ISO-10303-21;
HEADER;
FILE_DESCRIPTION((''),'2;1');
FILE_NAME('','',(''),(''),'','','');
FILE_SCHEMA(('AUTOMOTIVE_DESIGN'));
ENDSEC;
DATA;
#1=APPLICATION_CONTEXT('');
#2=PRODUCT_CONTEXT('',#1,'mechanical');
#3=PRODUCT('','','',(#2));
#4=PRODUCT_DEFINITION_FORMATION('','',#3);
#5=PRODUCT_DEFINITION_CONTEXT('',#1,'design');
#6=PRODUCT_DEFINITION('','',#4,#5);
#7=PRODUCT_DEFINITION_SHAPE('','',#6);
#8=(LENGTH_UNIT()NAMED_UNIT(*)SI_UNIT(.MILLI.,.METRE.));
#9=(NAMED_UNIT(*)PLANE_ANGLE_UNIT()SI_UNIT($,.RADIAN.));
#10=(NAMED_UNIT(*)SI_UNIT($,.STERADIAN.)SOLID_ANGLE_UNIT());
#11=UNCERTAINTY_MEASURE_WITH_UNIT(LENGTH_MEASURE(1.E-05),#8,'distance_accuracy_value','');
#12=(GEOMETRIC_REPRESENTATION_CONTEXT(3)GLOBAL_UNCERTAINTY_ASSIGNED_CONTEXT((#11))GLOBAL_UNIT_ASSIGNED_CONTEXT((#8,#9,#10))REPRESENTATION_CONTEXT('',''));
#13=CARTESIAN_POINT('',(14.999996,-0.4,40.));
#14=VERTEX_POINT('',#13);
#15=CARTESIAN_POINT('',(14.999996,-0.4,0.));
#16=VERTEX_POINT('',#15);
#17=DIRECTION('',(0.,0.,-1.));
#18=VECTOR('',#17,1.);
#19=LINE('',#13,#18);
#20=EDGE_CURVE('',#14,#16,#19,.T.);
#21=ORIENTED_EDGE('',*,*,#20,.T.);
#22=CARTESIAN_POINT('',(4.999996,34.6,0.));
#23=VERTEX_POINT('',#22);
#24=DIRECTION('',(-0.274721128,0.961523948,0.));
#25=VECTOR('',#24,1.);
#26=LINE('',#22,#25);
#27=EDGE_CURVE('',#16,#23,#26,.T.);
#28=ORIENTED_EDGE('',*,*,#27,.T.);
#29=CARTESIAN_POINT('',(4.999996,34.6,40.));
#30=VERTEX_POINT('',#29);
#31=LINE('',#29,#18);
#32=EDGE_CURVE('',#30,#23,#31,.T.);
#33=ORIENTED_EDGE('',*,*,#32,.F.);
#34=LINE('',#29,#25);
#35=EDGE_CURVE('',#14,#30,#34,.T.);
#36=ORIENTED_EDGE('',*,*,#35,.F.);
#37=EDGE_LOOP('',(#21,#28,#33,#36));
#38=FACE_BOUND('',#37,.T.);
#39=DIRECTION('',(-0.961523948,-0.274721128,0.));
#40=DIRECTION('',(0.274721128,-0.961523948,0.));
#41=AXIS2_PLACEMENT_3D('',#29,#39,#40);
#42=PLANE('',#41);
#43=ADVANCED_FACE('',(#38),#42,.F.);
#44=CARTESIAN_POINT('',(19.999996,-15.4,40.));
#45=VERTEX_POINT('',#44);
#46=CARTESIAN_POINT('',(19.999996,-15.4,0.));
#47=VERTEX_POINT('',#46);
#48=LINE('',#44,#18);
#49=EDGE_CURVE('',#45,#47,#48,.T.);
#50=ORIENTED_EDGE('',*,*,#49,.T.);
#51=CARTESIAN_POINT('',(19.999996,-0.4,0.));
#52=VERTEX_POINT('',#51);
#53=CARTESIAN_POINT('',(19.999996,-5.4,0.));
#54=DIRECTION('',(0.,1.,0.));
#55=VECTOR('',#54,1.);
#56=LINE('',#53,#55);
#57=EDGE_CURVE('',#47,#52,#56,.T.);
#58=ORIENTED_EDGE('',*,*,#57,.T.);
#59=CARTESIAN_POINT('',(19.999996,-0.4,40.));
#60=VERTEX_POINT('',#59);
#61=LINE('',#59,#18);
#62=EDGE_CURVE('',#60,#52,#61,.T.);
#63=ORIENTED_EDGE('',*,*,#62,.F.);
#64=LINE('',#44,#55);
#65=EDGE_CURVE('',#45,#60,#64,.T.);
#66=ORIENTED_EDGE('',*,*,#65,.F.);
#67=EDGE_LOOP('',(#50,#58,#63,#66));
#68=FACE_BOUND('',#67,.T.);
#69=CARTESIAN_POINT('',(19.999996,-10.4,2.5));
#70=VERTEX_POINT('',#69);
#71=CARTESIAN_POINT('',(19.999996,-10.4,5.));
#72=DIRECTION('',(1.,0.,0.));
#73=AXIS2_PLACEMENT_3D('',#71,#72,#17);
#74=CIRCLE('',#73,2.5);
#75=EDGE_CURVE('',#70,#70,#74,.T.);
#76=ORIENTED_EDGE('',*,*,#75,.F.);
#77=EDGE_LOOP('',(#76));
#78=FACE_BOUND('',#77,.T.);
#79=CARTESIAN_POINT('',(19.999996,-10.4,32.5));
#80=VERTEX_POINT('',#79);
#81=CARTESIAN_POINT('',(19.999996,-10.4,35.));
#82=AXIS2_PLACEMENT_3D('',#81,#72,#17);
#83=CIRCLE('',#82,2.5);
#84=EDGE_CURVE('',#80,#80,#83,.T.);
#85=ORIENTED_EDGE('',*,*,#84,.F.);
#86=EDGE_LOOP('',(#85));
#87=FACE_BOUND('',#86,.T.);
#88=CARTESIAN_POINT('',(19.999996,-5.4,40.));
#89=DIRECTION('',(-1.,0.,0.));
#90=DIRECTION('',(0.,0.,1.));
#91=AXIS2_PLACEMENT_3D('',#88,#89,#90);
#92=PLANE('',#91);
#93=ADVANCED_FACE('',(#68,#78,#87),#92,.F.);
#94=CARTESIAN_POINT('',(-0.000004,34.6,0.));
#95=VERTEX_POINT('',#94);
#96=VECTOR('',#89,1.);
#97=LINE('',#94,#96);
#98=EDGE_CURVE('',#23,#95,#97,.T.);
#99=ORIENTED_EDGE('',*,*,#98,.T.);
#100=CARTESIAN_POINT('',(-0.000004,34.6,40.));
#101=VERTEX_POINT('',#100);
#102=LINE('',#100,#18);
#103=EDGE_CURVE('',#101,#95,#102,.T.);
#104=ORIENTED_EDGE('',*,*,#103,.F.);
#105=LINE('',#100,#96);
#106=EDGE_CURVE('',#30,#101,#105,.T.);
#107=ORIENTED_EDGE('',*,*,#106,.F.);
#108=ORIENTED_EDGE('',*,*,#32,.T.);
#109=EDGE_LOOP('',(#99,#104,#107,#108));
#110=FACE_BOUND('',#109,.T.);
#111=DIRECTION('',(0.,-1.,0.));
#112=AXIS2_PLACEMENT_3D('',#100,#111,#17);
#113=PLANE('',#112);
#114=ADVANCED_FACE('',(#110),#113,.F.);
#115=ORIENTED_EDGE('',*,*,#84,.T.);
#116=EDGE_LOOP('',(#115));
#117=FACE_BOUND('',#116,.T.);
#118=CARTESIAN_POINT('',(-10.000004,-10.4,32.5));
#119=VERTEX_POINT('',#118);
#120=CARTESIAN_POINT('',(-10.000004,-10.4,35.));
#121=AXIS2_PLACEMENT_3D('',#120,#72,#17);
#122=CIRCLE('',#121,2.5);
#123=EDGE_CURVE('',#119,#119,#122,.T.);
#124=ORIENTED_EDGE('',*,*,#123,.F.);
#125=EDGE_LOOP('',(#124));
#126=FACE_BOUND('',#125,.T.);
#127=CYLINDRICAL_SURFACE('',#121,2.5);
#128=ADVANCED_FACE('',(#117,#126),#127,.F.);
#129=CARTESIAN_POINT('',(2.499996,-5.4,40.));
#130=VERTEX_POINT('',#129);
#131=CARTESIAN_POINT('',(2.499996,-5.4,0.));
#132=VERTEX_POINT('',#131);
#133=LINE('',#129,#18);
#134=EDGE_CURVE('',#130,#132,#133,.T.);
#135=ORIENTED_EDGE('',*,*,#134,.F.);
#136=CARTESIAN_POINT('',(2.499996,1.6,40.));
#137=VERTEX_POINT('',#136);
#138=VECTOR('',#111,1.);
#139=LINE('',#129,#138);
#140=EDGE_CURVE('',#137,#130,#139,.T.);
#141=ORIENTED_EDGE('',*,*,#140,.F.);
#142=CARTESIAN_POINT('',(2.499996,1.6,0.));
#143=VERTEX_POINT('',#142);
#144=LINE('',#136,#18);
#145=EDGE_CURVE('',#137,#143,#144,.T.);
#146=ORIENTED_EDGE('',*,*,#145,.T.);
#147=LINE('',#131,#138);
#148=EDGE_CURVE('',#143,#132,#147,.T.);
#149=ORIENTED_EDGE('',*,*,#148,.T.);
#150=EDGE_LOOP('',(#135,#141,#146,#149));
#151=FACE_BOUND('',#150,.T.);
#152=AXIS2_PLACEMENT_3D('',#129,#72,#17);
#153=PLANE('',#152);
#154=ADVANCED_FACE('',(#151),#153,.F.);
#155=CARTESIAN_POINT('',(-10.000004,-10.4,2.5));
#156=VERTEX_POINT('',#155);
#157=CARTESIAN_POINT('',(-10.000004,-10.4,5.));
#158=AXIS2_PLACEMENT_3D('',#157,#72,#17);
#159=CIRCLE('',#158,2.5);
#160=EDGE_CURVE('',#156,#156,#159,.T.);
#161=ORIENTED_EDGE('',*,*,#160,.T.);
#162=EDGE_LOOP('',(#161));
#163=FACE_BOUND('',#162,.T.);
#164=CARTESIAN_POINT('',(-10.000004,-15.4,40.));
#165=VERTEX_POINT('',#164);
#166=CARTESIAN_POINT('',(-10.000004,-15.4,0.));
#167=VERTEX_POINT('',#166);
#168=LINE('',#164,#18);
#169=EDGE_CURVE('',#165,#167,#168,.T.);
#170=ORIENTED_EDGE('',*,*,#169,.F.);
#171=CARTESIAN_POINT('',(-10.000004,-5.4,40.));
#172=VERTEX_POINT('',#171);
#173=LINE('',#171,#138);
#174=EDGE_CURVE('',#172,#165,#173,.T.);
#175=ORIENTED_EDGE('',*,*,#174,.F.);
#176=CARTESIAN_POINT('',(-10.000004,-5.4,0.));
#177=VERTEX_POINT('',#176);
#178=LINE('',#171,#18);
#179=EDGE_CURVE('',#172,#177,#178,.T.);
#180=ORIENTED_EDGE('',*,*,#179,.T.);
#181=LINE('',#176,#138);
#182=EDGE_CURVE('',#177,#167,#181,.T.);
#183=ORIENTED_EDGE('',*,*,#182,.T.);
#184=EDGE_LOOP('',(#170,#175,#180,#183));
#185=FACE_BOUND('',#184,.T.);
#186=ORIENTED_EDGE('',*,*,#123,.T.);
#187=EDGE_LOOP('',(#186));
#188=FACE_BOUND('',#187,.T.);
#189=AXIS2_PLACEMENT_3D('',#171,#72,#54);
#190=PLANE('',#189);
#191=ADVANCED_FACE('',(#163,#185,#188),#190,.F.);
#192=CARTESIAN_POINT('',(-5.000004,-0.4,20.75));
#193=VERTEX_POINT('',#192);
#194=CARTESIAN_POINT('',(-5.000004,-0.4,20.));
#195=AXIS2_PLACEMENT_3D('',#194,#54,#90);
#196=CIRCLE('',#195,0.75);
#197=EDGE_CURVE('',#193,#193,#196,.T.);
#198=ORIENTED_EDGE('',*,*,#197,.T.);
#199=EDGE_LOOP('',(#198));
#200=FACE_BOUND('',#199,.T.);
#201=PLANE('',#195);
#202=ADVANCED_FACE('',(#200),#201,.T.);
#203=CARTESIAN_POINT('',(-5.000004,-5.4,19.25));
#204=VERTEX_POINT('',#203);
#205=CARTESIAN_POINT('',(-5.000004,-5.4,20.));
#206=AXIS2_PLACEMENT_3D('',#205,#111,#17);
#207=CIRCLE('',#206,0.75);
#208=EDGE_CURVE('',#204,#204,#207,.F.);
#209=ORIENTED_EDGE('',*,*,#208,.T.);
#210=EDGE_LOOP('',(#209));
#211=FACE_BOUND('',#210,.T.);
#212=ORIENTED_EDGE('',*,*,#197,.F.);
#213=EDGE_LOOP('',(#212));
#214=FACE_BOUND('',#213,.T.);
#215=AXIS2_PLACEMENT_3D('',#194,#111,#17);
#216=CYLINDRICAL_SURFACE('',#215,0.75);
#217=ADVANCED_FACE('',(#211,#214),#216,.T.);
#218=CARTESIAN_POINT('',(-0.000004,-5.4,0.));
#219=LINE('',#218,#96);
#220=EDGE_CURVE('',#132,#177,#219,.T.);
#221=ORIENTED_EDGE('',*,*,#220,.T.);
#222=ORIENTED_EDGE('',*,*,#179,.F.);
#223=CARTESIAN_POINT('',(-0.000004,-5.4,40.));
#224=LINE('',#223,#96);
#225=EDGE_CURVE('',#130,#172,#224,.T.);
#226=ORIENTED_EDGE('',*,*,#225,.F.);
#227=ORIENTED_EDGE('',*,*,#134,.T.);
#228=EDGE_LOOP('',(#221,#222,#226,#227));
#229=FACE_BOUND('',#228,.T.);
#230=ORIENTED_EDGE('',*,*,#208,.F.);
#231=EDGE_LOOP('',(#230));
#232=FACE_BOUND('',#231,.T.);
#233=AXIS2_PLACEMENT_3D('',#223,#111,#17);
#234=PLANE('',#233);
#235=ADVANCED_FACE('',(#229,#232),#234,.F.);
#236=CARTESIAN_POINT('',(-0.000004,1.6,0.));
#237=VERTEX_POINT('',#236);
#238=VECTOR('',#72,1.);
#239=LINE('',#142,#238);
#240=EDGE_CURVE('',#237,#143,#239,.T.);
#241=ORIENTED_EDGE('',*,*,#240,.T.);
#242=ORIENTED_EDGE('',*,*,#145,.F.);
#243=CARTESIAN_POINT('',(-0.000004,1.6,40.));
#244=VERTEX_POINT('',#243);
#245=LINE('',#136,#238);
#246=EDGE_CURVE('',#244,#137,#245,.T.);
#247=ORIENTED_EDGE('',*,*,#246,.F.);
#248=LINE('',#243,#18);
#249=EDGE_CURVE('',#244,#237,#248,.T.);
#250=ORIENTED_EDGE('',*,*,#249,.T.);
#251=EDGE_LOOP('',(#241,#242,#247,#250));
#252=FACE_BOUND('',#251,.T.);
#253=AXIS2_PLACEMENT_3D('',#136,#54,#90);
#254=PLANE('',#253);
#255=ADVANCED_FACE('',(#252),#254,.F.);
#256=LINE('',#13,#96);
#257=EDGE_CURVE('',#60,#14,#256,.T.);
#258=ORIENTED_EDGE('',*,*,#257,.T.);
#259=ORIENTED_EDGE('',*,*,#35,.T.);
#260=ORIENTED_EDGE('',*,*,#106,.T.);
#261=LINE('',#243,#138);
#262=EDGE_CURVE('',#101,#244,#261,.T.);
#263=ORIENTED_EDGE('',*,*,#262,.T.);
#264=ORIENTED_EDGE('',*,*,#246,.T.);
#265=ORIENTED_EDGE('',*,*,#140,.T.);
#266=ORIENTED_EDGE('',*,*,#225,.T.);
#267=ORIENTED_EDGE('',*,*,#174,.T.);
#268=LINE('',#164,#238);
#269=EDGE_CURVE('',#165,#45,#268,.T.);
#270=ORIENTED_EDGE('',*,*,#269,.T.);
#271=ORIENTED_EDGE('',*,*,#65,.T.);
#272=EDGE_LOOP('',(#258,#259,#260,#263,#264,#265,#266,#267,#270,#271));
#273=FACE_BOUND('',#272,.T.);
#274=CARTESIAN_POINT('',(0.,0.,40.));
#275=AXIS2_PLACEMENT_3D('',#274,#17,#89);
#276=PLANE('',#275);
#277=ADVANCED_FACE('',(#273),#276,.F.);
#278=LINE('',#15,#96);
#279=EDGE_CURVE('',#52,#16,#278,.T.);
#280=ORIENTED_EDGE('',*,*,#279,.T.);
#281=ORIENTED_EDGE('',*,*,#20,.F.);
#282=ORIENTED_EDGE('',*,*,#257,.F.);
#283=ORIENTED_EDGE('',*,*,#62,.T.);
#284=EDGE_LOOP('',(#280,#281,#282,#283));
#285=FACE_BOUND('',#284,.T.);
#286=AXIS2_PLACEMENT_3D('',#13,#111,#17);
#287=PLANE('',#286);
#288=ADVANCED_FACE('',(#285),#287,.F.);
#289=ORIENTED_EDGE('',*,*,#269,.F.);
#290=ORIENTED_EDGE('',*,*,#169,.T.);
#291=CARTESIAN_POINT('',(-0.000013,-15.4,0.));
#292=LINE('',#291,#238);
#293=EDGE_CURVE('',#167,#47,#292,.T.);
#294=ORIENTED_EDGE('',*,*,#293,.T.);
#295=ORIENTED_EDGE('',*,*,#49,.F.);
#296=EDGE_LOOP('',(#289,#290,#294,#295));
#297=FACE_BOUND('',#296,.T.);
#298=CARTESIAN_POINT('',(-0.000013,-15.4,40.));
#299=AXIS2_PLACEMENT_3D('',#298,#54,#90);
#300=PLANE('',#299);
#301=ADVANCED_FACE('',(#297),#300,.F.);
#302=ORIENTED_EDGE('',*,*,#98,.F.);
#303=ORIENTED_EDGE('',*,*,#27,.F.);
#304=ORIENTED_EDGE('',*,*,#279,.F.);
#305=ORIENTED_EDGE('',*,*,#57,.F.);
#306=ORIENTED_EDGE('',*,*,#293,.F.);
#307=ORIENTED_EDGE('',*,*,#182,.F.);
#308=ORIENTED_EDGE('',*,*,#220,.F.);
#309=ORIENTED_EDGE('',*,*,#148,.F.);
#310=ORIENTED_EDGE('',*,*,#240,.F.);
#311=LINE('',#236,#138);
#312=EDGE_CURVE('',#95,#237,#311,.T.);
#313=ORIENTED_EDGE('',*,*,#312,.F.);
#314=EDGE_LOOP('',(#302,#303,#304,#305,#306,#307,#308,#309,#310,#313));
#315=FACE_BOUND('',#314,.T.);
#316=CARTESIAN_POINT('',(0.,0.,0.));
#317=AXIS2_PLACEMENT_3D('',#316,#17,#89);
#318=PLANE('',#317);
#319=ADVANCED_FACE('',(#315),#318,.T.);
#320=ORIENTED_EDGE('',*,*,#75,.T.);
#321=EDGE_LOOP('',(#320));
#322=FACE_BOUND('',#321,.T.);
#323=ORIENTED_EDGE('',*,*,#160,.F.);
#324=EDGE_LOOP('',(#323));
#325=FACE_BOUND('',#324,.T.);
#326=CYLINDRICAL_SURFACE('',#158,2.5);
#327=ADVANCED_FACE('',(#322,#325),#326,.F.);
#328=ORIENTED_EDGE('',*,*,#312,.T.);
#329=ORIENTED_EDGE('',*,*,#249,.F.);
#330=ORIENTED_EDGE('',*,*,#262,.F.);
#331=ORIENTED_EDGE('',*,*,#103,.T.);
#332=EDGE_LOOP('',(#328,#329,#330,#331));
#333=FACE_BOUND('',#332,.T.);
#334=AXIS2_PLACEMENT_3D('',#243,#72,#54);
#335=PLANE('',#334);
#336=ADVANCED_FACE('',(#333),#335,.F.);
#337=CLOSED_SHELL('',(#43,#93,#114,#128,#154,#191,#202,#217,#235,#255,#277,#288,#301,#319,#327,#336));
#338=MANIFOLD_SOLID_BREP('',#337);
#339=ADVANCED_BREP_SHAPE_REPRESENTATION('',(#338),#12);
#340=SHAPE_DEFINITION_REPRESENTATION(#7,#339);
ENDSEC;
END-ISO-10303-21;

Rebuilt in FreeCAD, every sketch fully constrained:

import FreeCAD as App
import Part
import Sketcher


def add_polygon(sketch, points):
    """Adds a closed chain of lines whose ends are joined by coincident constraints."""
    first, n = sketch.GeometryCount, len(points)
    for a, b in zip(points, points[1:] + points[:1]):
        sketch.addGeometry(Part.LineSegment(App.Vector(*a, 0), App.Vector(*b, 0)), False)
    for i in range(n):
        sketch.addConstraint(Sketcher.Constraint("Coincident", first + i, 2, first + (i + 1) % n, 1))

doc = App.newDocument("Part")
body = doc.addObject("PartDesign::Body", "Body")

sketch1 = doc.addObject("Sketcher::SketchObject", "Sketch")
body.addObject(sketch1)
sketch1.AttachmentSupport = (doc.XY_Plane, [""])
sketch1.MapMode = "FlatFace"
add_polygon(sketch1, [(5, 34.6), (0, 34.6), (0, 1.6), (2.5, 1.6), (2.5, -5.4), (-10, -5.4), (-10, -15.4), (20, -15.4), (20, -0.4), (15, -0.4)])
sketch1.addConstraint([
    Sketcher.Constraint("Horizontal", 0),
    Sketcher.Constraint("Vertical", 1),
    Sketcher.Constraint("Horizontal", 2),
    Sketcher.Constraint("Vertical", 3),
    Sketcher.Constraint("Horizontal", 4),
    Sketcher.Constraint("Vertical", 5),
    Sketcher.Constraint("Horizontal", 6),
    Sketcher.Constraint("Vertical", 7),
    Sketcher.Constraint("Horizontal", 8),
    Sketcher.Constraint("Equal", 0, 8),
    Sketcher.Constraint("DistanceX", 0, 2, 0, 1, 5.0),
    Sketcher.Constraint("DistanceX", 6, 1, 6, 2, 30.0),
    Sketcher.Constraint("DistanceY", 1, 2, 1, 1, 33.0),
    Sketcher.Constraint("DistanceY", 3, 2, 3, 1, 7.0),
    Sketcher.Constraint("DistanceY", 5, 2, 5, 1, 10.0),
    Sketcher.Constraint("DistanceY", 7, 1, 7, 2, 15.0),
    Sketcher.Constraint("DistanceX", 2, 1, 2, 2, 2.5),
    Sketcher.Constraint("DistanceX", 4, 2, 4, 1, 12.5),
    Sketcher.Constraint("DistanceY", -1, 1, 0, 2, 34.6),
    Sketcher.Constraint("DistanceX", -1, 1, 2, 2, 2.499996),
])
pad1 = doc.addObject("PartDesign::Pad", "Pad")
body.addObject(pad1)
pad1.Profile = sketch1
pad1.Length = 40

sketch2 = doc.addObject("Sketcher::SketchObject", "Sketch001")
body.addObject(sketch2)
sketch2.AttachmentSupport = (doc.YZ_Plane, [""])
sketch2.MapMode = "FlatFace"
sketch2.AttachmentOffset = App.Placement(App.Vector(0, 0, 19.999996), App.Rotation())
sketch2.addGeometry([
    Part.Circle(App.Vector(-10.4, 35, 0), App.Vector(0, 0, 1), 2.5),
    Part.Circle(App.Vector(-10.4, 5, 0), App.Vector(0, 0, 1), 2.5),
], False)
sketch2.addConstraint([
    Sketcher.Constraint("Equal", 0, 1),
    Sketcher.Constraint("Vertical", 0, 3, 1, 3),
    Sketcher.Constraint("Diameter", 0, 5.0),
    Sketcher.Constraint("DistanceY", -1, 1, 0, 3, 35.0),
    Sketcher.Constraint("DistanceY", -1, 1, 1, 3, 5.0),
    Sketcher.Constraint("DistanceX", 0, 3, -1, 1, 10.4),
])
pocket1 = doc.addObject("PartDesign::Pocket", "Pocket")
body.addObject(pocket1)
pocket1.Profile = sketch2
pocket1.Type = "ThroughAll"

sketch3 = doc.addObject("Sketcher::SketchObject", "Sketch002")
body.addObject(sketch3)
sketch3.AttachmentSupport = (doc.XZ_Plane, [""])
sketch3.MapMode = "FlatFace"
sketch3.AttachmentOffset = App.Placement(App.Vector(0, 0, 5.4), App.Rotation())
sketch3.addGeometry(Part.Circle(App.Vector(-5, 20, 0), App.Vector(0, 0, 1), 0.8), False)
sketch3.addConstraint([
    Sketcher.Constraint("Diameter", 0, 1.5),
    Sketcher.Constraint("DistanceY", -1, 1, 0, 3, 20.0),
    Sketcher.Constraint("DistanceX", 0, 3, -1, 1, 5.000004),
])
pad2 = doc.addObject("PartDesign::Pad", "Pad001")
body.addObject(pad2)
pad2.Profile = sketch3
pad2.Length = 5
pad2.Reversed = True

doc.recompute()
